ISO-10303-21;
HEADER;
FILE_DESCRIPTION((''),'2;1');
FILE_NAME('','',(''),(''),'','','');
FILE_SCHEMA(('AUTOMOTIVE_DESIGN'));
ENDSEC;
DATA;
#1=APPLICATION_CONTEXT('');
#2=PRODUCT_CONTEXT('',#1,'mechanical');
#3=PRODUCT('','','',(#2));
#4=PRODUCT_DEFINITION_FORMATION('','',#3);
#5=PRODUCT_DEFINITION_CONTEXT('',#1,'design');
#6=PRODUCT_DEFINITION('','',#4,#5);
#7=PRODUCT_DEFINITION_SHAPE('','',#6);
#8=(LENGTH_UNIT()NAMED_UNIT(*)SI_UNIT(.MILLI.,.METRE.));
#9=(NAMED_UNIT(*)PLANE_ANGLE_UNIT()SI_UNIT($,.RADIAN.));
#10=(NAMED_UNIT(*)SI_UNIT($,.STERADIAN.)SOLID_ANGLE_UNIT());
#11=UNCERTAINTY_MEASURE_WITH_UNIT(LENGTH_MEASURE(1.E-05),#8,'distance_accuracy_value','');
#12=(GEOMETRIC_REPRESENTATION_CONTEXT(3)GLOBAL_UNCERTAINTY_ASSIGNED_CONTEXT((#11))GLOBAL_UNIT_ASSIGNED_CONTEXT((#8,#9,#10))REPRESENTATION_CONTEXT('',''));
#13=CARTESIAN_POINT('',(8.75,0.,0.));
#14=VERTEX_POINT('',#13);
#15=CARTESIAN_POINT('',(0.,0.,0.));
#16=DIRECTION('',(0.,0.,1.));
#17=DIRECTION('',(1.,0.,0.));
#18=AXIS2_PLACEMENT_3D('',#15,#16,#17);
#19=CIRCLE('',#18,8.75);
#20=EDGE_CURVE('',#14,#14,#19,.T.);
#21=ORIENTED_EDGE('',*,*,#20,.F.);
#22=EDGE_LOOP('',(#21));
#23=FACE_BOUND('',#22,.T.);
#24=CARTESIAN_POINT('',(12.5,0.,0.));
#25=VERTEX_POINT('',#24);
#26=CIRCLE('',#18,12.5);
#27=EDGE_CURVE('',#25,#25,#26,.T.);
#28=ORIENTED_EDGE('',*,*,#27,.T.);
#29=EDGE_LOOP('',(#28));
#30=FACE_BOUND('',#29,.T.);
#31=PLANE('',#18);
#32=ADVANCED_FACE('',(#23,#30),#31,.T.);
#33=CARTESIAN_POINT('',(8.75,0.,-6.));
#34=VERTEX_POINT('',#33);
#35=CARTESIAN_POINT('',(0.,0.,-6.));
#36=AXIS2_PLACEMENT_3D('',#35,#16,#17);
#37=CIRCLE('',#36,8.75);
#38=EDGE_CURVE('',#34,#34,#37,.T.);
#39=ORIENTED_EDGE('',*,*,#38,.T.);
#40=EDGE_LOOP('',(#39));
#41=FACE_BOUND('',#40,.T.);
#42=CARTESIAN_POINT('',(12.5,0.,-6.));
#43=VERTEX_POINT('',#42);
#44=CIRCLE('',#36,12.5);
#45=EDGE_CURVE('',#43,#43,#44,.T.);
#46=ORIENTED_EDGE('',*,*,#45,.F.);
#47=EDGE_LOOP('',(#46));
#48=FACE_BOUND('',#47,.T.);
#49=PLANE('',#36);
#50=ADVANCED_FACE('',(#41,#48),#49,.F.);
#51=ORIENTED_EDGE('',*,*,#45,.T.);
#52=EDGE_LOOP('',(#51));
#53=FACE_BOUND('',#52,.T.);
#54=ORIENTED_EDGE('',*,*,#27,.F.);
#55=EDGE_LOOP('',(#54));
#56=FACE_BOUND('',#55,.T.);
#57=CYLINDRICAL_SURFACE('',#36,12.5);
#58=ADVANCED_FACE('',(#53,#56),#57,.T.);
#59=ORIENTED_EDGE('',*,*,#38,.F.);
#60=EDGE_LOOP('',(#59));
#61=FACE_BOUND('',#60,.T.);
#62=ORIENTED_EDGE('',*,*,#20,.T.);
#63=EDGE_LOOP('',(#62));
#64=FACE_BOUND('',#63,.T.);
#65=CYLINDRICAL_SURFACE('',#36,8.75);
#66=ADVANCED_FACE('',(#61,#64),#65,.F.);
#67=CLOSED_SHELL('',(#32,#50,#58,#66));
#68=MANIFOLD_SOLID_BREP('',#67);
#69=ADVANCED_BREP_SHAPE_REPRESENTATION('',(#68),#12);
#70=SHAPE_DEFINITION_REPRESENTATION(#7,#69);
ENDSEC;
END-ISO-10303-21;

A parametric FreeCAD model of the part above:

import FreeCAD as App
import Part
import Sketcher

V = App.Vector
Q = App.Units.Quantity

doc = App.newDocument("Part")
body = doc.addObject("PartDesign::Body", "Body")

sketch1 = body.newObject("Sketcher::SketchObject", "Sketch")
sketch1.AttachmentSupport = (doc.getObject("XY_Plane"), [""])
sketch1.MapMode = "FlatFace"
sketch1.addGeometry([
    Part.Circle(V(0, 0, 0), V(0, 0, 1), 12),
    Part.Circle(V(0, 0, 0), V(0, 0, 1), 9),
], False)
sketch1.addConstraint([
    Sketcher.Constraint("Coincident", 0, 3, -1, 1),
    Sketcher.Constraint("Coincident", 1, 3, -1, 1),
    Sketcher.Constraint("Diameter", 0, Q("25 mm")),
    Sketcher.Constraint("Diameter", 1, Q("17.5 mm")),
])
pad1 = body.newObject("PartDesign::Pad", "Pad")
pad1.Profile = sketch1
pad1.Length = 6
pad1.Reversed = True

doc.recompute()
